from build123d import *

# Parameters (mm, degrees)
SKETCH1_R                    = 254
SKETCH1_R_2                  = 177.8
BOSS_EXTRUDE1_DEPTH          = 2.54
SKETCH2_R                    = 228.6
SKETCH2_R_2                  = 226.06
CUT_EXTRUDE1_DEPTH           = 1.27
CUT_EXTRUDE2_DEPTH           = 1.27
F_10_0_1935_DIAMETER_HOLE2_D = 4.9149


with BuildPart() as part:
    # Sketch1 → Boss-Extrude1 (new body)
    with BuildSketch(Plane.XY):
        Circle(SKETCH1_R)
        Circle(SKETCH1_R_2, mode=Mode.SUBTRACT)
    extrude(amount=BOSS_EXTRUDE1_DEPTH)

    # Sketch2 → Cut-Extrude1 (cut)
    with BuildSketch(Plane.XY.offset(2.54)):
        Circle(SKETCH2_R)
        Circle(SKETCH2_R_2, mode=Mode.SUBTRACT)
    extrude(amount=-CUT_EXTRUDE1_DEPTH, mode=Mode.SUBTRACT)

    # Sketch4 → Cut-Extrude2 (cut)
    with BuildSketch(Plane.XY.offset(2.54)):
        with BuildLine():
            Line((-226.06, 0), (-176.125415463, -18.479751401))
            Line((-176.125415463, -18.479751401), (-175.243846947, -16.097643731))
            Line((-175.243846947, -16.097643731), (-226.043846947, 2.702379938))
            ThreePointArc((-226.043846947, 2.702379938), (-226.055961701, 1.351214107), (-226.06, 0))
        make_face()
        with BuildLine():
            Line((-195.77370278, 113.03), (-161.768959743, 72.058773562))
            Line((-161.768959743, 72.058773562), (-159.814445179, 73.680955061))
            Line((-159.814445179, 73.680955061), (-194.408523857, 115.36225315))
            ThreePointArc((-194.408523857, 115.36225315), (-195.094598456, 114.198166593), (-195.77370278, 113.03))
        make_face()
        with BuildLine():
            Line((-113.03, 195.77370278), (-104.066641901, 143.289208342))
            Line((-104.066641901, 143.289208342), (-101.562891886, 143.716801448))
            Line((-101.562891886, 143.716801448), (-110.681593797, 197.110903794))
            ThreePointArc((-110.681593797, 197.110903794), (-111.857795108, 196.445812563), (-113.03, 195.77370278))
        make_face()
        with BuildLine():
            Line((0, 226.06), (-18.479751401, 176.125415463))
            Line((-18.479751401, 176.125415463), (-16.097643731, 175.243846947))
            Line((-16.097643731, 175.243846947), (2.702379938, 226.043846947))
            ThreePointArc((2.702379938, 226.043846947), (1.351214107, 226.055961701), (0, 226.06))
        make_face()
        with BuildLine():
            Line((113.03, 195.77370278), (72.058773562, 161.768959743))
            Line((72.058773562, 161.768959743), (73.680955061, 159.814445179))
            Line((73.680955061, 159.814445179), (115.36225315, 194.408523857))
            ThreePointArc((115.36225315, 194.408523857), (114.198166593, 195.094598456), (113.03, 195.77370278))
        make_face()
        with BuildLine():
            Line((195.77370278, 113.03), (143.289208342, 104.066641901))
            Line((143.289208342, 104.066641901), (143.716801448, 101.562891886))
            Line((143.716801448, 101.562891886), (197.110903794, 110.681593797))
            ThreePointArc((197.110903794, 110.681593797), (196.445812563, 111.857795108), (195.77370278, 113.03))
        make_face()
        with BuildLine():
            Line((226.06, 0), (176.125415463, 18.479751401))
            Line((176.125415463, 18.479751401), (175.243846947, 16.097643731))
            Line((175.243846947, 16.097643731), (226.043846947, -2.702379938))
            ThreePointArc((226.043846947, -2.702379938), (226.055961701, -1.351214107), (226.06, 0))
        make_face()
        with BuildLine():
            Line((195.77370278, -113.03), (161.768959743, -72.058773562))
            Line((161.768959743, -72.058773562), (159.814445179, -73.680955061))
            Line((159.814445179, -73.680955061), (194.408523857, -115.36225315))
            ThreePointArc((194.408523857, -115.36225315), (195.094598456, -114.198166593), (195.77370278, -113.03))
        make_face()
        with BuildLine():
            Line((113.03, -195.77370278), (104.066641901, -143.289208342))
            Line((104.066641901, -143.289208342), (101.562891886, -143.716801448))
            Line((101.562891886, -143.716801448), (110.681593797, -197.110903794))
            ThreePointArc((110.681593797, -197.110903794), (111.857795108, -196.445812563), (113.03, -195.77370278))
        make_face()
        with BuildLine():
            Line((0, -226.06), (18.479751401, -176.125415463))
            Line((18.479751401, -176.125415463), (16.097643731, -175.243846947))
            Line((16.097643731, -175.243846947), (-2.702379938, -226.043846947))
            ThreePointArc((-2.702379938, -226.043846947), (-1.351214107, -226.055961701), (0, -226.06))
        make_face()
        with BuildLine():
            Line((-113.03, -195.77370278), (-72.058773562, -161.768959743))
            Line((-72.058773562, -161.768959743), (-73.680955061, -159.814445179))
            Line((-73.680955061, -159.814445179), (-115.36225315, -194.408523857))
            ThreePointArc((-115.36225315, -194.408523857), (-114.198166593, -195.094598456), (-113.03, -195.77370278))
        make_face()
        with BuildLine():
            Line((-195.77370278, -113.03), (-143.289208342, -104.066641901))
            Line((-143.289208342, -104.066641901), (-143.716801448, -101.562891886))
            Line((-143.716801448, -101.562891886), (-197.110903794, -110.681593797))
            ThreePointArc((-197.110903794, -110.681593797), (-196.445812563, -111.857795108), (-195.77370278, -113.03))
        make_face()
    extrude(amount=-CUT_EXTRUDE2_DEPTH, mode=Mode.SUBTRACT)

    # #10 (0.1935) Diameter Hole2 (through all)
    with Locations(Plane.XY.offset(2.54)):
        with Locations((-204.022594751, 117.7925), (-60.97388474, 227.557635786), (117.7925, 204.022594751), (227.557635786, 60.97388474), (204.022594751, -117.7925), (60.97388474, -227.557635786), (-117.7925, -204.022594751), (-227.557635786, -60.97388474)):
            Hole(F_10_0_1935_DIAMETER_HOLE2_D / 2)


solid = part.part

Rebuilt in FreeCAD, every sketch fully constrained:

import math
import FreeCAD as App
import Part
import Sketcher

V = App.Vector
Q = App.Units.Quantity

doc = App.newDocument("Part")
body = doc.addObject("PartDesign::Body", "Body")

# Sketch on XY plane
sketch1 = body.newObject("Sketcher::SketchObject", "Sketch")
sketch1.AttachmentSupport = (doc.getObject("XY_Plane"), [""])
sketch1.MapMode = "FlatFace"
sketch1.addGeometry(Part.Circle(V(0, 0, 0), V(0, 0, 1), 254), False)
sketch1.addGeometry(Part.Circle(V(0, 0, 0), V(0, 0, 1), 178), False)
sketch1.addConstraint(Sketcher.Constraint("Coincident", 0, 3, -1, 1))
sketch1.addConstraint(Sketcher.Constraint("Coincident", 1, 3, -1, 1))
sketch1.addConstraint(Sketcher.Constraint("Diameter", 0, Q("20 in")))
sketch1.addConstraint(Sketcher.Constraint("Diameter", 1, Q("14 in")))
pad1 = body.newObject("PartDesign::Pad", "Pad")
pad1.Profile = sketch1
pad1.Length = Q("0.1 in")

# Sketch on XY plane
sketch2 = body.newObject("Sketcher::SketchObject", "Sketch001")
sketch2.AttachmentSupport = (doc.getObject("XY_Plane"), [""])
sketch2.MapMode = "FlatFace"
sketch2.AttachmentOffset = App.Placement(V(0, 0, 0.1 * 25.4), App.Rotation())
sketch2.addGeometry(Part.Circle(V(0, 0, 0), V(0, 0, 1), 229), False)
sketch2.addGeometry(Part.Circle(V(0, 0, 0), V(0, 0, 1), 226), False)
sketch2.addConstraint(Sketcher.Constraint("Coincident", 0, 3, -1, 1))
sketch2.addConstraint(Sketcher.Constraint("Coincident", 1, 3, -1, 1))
sketch2.addConstraint(Sketcher.Constraint("Diameter", 0, Q("18 in")))
sketch2.addConstraint(Sketcher.Constraint("Diameter", 1, Q("17.8 in")))
pocket1 = body.newObject("PartDesign::Pocket", "Pocket")
pocket1.Profile = sketch2
pocket1.Length = Q("0.05 in")

# Sketch on XY plane
sketch3 = body.newObject("Sketcher::SketchObject", "Sketch002")
sketch3.AttachmentSupport = (doc.getObject("XY_Plane"), [""])
sketch3.MapMode = "FlatFace"
sketch3.AttachmentOffset = App.Placement(V(0, 0, 0.1 * 25.4), App.Rotation())
sketch3.addGeometry(Part.LineSegment(V(-226.06, 0, 0), V(-176.125415, -18.479751, 0)), False)
sketch3.addGeometry(Part.LineSegment(V(-176.125415, -18.479751, 0), V(-175.243847, -16.097644, 0)), False)
sketch3.addGeometry(Part.LineSegment(V(-175.243847, -16.097644, 0), V(-226.043847, 2.70238, 0)), False)
sketch3.addGeometry(Part.ArcOfCircle(Part.Circle(V(-0.00002, 0, 0), V(0, 0, 1), 226.05998), math.radians(179.315055), math.radians(180)), False)
sketch3.addGeometry(Part.LineSegment(V(-195.773703, 113.03, 0), V(-161.76896, 72.058774, 0)), False)
sketch3.addGeometry(Part.LineSegment(V(-161.76896, 72.058774, 0), V(-159.814445, 73.680955, 0)), False)
sketch3.addGeometry(Part.LineSegment(V(-159.814445, 73.680955, 0), V(-194.408524, 115.362253, 0)), False)
sketch3.addGeometry(Part.ArcOfCircle(Part.Circle(V(0.000025, -0.000015, 0), V(0, 0, 1), 226.060029), math.radians(149.315055), math.radians(150)), False)
sketch3.addGeometry(Part.LineSegment(V(-113.03, 195.773703, 0), V(-104.066642, 143.289208, 0)), False)
sketch3.addGeometry(Part.LineSegment(V(-104.066642, 143.289208, 0), V(-101.562892, 143.716801, 0)), False)
sketch3.addGeometry(Part.LineSegment(V(-101.562892, 143.716801, 0), V(-110.681594, 197.110904, 0)), False)
sketch3.addGeometry(Part.ArcOfCircle(Part.Circle(V(0.000006, -0.000011, 0), V(0, 0, 1), 226.060013), math.radians(119.315055), math.radians(120)), False)
sketch3.addGeometry(Part.LineSegment(V(0, 226.06, 0), V(-18.479751, 176.125415, 0)), False)
sketch3.addGeometry(Part.LineSegment(V(-18.479751, 176.125415, 0), V(-16.097644, 175.243847, 0)), False)
sketch3.addGeometry(Part.LineSegment(V(-16.097644, 175.243847, 0), V(2.70238, 226.043847, 0)), False)
sketch3.addGeometry(Part.ArcOfCircle(Part.Circle(V(0, 0.00002, 0), V(0, 0, 1), 226.05998), math.radians(89.315055), math.radians(90)), False)
sketch3.addGeometry(Part.LineSegment(V(113.03, 195.773703, 0), V(72.058774, 161.76896, 0)), False)
sketch3.addGeometry(Part.LineSegment(V(72.058774, 161.76896, 0), V(73.680955, 159.814445, 0)), False)
sketch3.addGeometry(Part.LineSegment(V(73.680955, 159.814445, 0), V(115.362253, 194.408524, 0)), False)
sketch3.addGeometry(Part.ArcOfCircle(Part.Circle(V(-0.000015, -0.000025, 0), V(0, 0, 1), 226.060029), math.radians(59.315055), math.radians(60)), False)
sketch3.addGeometry(Part.LineSegment(V(195.773703, 113.03, 0), V(143.289208, 104.066642, 0)), False)
sketch3.addGeometry(Part.LineSegment(V(143.289208, 104.066642, 0), V(143.716801, 101.562892, 0)), False)
sketch3.addGeometry(Part.LineSegment(V(143.716801, 101.562892, 0), V(197.110904, 110.681594, 0)), False)
sketch3.addGeometry(Part.ArcOfCircle(Part.Circle(V(-0.000011, -0.000006, 0), V(0, 0, 1), 226.060013), math.radians(29.315055), math.radians(30)), False)
sketch3.addGeometry(Part.LineSegment(V(226.06, 0, 0), V(176.125415, 18.479751, 0)), False)
sketch3.addGeometry(Part.LineSegment(V(176.125415, 18.479751, 0), V(175.243847, 16.097644, 0)), False)
sketch3.addGeometry(Part.LineSegment(V(175.243847, 16.097644, 0), V(226.043847, -2.70238, 0)), False)
sketch3.addGeometry(Part.ArcOfCircle(Part.Circle(V(0.00002, 0, 0), V(0, 0, 1), 226.05998), math.radians(-0.684945), math.radians(0)), False)
sketch3.addGeometry(Part.LineSegment(V(195.773703, -113.03, 0), V(161.76896, -72.058774, 0)), False)
sketch3.addGeometry(Part.LineSegment(V(161.76896, -72.058774, 0), V(159.814445, -73.680955, 0)), False)
sketch3.addGeometry(Part.LineSegment(V(159.814445, -73.680955, 0), V(194.408524, -115.362253, 0)), False)
sketch3.addGeometry(Part.ArcOfCircle(Part.Circle(V(-0.000025, 0.000015, 0), V(0, 0, 1), 226.060029), math.radians(-30.684945), math.radians(-30)), False)
sketch3.addGeometry(Part.LineSegment(V(113.03, -195.773703, 0), V(104.066642, -143.289208, 0)), False)
sketch3.addGeometry(Part.LineSegment(V(104.066642, -143.289208, 0), V(101.562892, -143.716801, 0)), False)
sketch3.addGeometry(Part.LineSegment(V(101.562892, -143.716801, 0), V(110.681594, -197.110904, 0)), False)
sketch3.addGeometry(Part.ArcOfCircle(Part.Circle(V(-0.000006, 0.000011, 0), V(0, 0, 1), 226.060013), math.radians(-60.684945), math.radians(-60)), False)
sketch3.addGeometry(Part.LineSegment(V(0, -226.06, 0), V(18.479751, -176.125415, 0)), False)
sketch3.addGeometry(Part.LineSegment(V(18.479751, -176.125415, 0), V(16.097644, -175.243847, 0)), False)
sketch3.addGeometry(Part.LineSegment(V(16.097644, -175.243847, 0), V(-2.70238, -226.043847, 0)), False)
sketch3.addGeometry(Part.ArcOfCircle(Part.Circle(V(0, -0.00002, 0), V(0, 0, 1), 226.05998), math.radians(-90.684945), math.radians(-90)), False)
sketch3.addGeometry(Part.LineSegment(V(-113.03, -195.773703, 0), V(-72.058774, -161.76896, 0)), False)
sketch3.addGeometry(Part.LineSegment(V(-72.058774, -161.76896, 0), V(-73.680955, -159.814445, 0)), False)
sketch3.addGeometry(Part.LineSegment(V(-73.680955, -159.814445, 0), V(-115.362253, -194.408524, 0)), False)
sketch3.addGeometry(Part.ArcOfCircle(Part.Circle(V(0.000015, 0.000025, 0), V(0, 0, 1), 226.060029), math.radians(-120.684945), math.radians(-120)), False)
sketch3.addGeometry(Part.LineSegment(V(-195.773703, -113.03, 0), V(-143.289208, -104.066642, 0)), False)
sketch3.addGeometry(Part.LineSegment(V(-143.289208, -104.066642, 0), V(-143.716801, -101.562892, 0)), False)
sketch3.addGeometry(Part.LineSegment(V(-143.716801, -101.562892, 0), V(-197.110904, -110.681594, 0)), False)
sketch3.addGeometry(Part.ArcOfCircle(Part.Circle(V(0.000011, 0.000006, 0), V(0, 0, 1), 226.060013), math.radians(-150.684945), math.radians(-150)), False)
sketch3.addConstraint(Sketcher.Constraint("Coincident", 0, 2, 1, 1))
sketch3.addConstraint(Sketcher.Constraint("Coincident", 1, 2, 2, 1))
sketch3.addConstraint(Sketcher.Constraint("Coincident", 2, 2, 3, 1))
sketch3.addConstraint(Sketcher.Constraint("Coincident", 3, 2, 0, 1))
sketch3.addConstraint(Sketcher.Constraint("Coincident", 4, 2, 5, 1))
sketch3.addConstraint(Sketcher.Constraint("Coincident", 5, 2, 6, 1))
sketch3.addConstraint(Sketcher.Constraint("Coincident", 6, 2, 7, 1))
sketch3.addConstraint(Sketcher.Constraint("Coincident", 7, 2, 4, 1))
sketch3.addConstraint(Sketcher.Constraint("Coincident", 8, 2, 9, 1))
sketch3.addConstraint(Sketcher.Constraint("Coincident", 9, 2, 10, 1))
sketch3.addConstraint(Sketcher.Constraint("Coincident", 10, 2, 11, 1))
sketch3.addConstraint(Sketcher.Constraint("Coincident", 11, 2, 8, 1))
sketch3.addConstraint(Sketcher.Constraint("Coincident", 12, 2, 13, 1))
sketch3.addConstraint(Sketcher.Constraint("Coincident", 13, 2, 14, 1))
sketch3.addConstraint(Sketcher.Constraint("Coincident", 14, 2, 15, 1))
sketch3.addConstraint(Sketcher.Constraint("Coincident", 15, 2, 12, 1))
sketch3.addConstraint(Sketcher.Constraint("Coincident", 16, 2, 17, 1))
sketch3.addConstraint(Sketcher.Constraint("Coincident", 17, 2, 18, 1))
sketch3.addConstraint(Sketcher.Constraint("Coincident", 18, 2, 19, 1))
sketch3.addConstraint(Sketcher.Constraint("Coincident", 19, 2, 16, 1))
sketch3.addConstraint(Sketcher.Constraint("Coincident", 20, 2, 21, 1))
sketch3.addConstraint(Sketcher.Constraint("Coincident", 21, 2, 22, 1))
sketch3.addConstraint(Sketcher.Constraint("Coincident", 22, 2, 23, 1))
sketch3.addConstraint(Sketcher.Constraint("Coincident", 23, 2, 20, 1))
sketch3.addConstraint(Sketcher.Constraint("Coincident", 24, 2, 25, 1))
sketch3.addConstraint(Sketcher.Constraint("Coincident", 25, 2, 26, 1))
sketch3.addConstraint(Sketcher.Constraint("Coincident", 26, 2, 27, 1))
sketch3.addConstraint(Sketcher.Constraint("Coincident", 27, 2, 24, 1))
sketch3.addConstraint(Sketcher.Constraint("Coincident", 28, 2, 29, 1))
sketch3.addConstraint(Sketcher.Constraint("Coincident", 29, 2, 30, 1))
sketch3.addConstraint(Sketcher.Constraint("Coincident", 30, 2, 31, 1))
sketch3.addConstraint(Sketcher.Constraint("Coincident", 31, 2, 28, 1))
sketch3.addConstraint(Sketcher.Constraint("Coincident", 32, 2, 33, 1))
sketch3.addConstraint(Sketcher.Constraint("Coincident", 33, 2, 34, 1))
sketch3.addConstraint(Sketcher.Constraint("Coincident", 34, 2, 35, 1))
sketch3.addConstraint(Sketcher.Constraint("Coincident", 35, 2, 32, 1))
sketch3.addConstraint(Sketcher.Constraint("Coincident", 36, 2, 37, 1))
sketch3.addConstraint(Sketcher.Constraint("Coincident", 37, 2, 38, 1))
sketch3.addConstraint(Sketcher.Constraint("Coincident", 38, 2, 39, 1))
sketch3.addConstraint(Sketcher.Constraint("Coincident", 39, 2, 36, 1))
sketch3.addConstraint(Sketcher.Constraint("Coincident", 40, 2, 41, 1))
sketch3.addConstraint(Sketcher.Constraint("Coincident", 41, 2, 42, 1))
sketch3.addConstraint(Sketcher.Constraint("Coincident", 42, 2, 43, 1))
sketch3.addConstraint(Sketcher.Constraint("Coincident", 43, 2, 40, 1))
sketch3.addConstraint(Sketcher.Constraint("Coincident", 44, 2, 45, 1))
sketch3.addConstraint(Sketcher.Constraint("Coincident", 45, 2, 46, 1))
sketch3.addConstraint(Sketcher.Constraint("Coincident", 46, 2, 47, 1))
sketch3.addConstraint(Sketcher.Constraint("Coincident", 47, 2, 44, 1))
sketch3.addConstraint(Sketcher.Constraint("Equal", 3, 15))
sketch3.addConstraint(Sketcher.Constraint("Equal", 7, 19))
sketch3.addConstraint(Sketcher.Constraint("Equal", 11, 23))
sketch3.addConstraint(Sketcher.Constraint("Equal", 15, 27))
sketch3.addConstraint(Sketcher.Constraint("Equal", 19, 31))
sketch3.addConstraint(Sketcher.Constraint("Equal", 23, 35))
sketch3.addConstraint(Sketcher.Constraint("Equal", 27, 39))
sketch3.addConstraint(Sketcher.Constraint("Equal", 31, 43))
sketch3.addConstraint(Sketcher.Constraint("Equal", 35, 47))
sketch3.addConstraint(Sketcher.Constraint("Symmetric", 3, 3, 27, 3, -1, 1))
sketch3.addConstraint(Sketcher.Constraint("Symmetric", 7, 3, 31, 3, -1, 1))
sketch3.addConstraint(Sketcher.Constraint("Symmetric", 11, 3, 35, 3, -1, 1))
sketch3.addConstraint(Sketcher.Constraint("Symmetric", 15, 3, 39, 3, -1, 1))
sketch3.addConstraint(Sketcher.Constraint("Symmetric", 19, 3, 43, 3, -1, 1))
sketch3.addConstraint(Sketcher.Constraint("Symmetric", 23, 3, 47, 3, -1, 1))
sketch3.addConstraint(Sketcher.Constraint("Symmetric", 0, 2, 24, 2, -1, 1))
sketch3.addConstraint(Sketcher.Constraint("Symmetric", 1, 2, 25, 2, -1, 1))
sketch3.addConstraint(Sketcher.Constraint("Symmetric", 4, 2, 28, 2, -1, 1))
sketch3.addConstraint(Sketcher.Constraint("Symmetric", 5, 2, 29, 2, -1, 1))
sketch3.addConstraint(Sketcher.Constraint("Symmetric", 8, 2, 32, 2, -1, 1))
sketch3.addConstraint(Sketcher.Constraint("Symmetric", 9, 2, 33, 2, -1, 1))
sketch3.addConstraint(Sketcher.Constraint("Symmetric", 12, 2, 36, 2, -1, 1))
sketch3.addConstraint(Sketcher.Constraint("Symmetric", 13, 2, 37, 2, -1, 1))
sketch3.addConstraint(Sketcher.Constraint("Symmetric", 16, 2, 40, 2, -1, 1))
sketch3.addConstraint(Sketcher.Constraint("Symmetric", 17, 2, 41, 2, -1, 1))
sketch3.addConstraint(Sketcher.Constraint("Symmetric", 20, 2, 44, 2, -1, 1))
sketch3.addConstraint(Sketcher.Constraint("Symmetric", 21, 2, 45, 2, -1, 1))
sketch3.addConstraint(Sketcher.Constraint("Symmetric", 11, 3, 23, 3, -2))
sketch3.addConstraint(Sketcher.Constraint("Symmetric", 11, 2, 19, 2, -2))
sketch3.addConstraint(Sketcher.Constraint("Symmetric", 7, 2, 23, 2, -2))
sketch3.addConstraint(Sketcher.Constraint("PointOnObject", 3, 3, -1))
sketch3.addConstraint(Sketcher.Constraint("PointOnObject", 15, 3, -2))
sketch3.addConstraint(Sketcher.Constraint("PointOnObject", 3, 2, -1))
sketch3.addConstraint(Sketcher.Constraint("PointOnObject", 15, 2, -2))
sketch3.addConstraint(Sketcher.Constraint("PointOnObject", 27, 2, -1))
sketch3.addConstraint(Sketcher.Constraint("PointOnObject", 39, 2, -2))
sketch3.addConstraint(Sketcher.Constraint("Perpendicular", 0, 1))
sketch3.addConstraint(Sketcher.Constraint("Perpendicular", 1, 2))
sketch3.addConstraint(Sketcher.Constraint("Perpendicular", 4, 5))
sketch3.addConstraint(Sketcher.Constraint("Perpendicular", 5, 6))
sketch3.addConstraint(Sketcher.Constraint("Perpendicular", 8, 9))
sketch3.addConstraint(Sketcher.Constraint("Perpendicular", 9, 10))
sketch3.addConstraint(Sketcher.Constraint("Perpendicular", 2, 12))
sketch3.addConstraint(Sketcher.Constraint("Perpendicular", 12, 13))
sketch3.addConstraint(Sketcher.Constraint("Perpendicular", 13, 14))
sketch3.addConstraint(Sketcher.Constraint("Perpendicular", 6, 16))
sketch3.addConstraint(Sketcher.Constraint("Perpendicular", 16, 17))
sketch3.addConstraint(Sketcher.Constraint("Perpendicular", 17, 18))
sketch3.addConstraint(Sketcher.Constraint("Perpendicular", 10, 20))
sketch3.addConstraint(Sketcher.Constraint("Perpendicular", 20, 21))
sketch3.addConstraint(Sketcher.Constraint("Perpendicular", 21, 22))
sketch3.addConstraint(Sketcher.Constraint("Perpendicular", 25, 26))
sketch3.addConstraint(Sketcher.Constraint("Perpendicular", 18, 28))
sketch3.addConstraint(Sketcher.Constraint("Perpendicular", 29, 30))
sketch3.addConstraint(Sketcher.Constraint("Perpendicular", 22, 32))
sketch3.addConstraint(Sketcher.Constraint("Perpendicular", 33, 34))
sketch3.addConstraint(Sketcher.Constraint("Perpendicular", 37, 38))
sketch3.addConstraint(Sketcher.Constraint("Perpendicular", 30, 40))
sketch3.addConstraint(Sketcher.Constraint("Perpendicular", 41, 42))
sketch3.addConstraint(Sketcher.Constraint("Perpendicular", 34, 44))
sketch3.addConstraint(Sketcher.Constraint("Perpendicular", 45, 46))
sketch3.addConstraint(Sketcher.Constraint("Equal", 0, 4))
sketch3.addConstraint(Sketcher.Constraint("Equal", 1, 5))
sketch3.addConstraint(Sketcher.Constraint("Equal", 2, 6))
sketch3.addConstraint(Sketcher.Constraint("Equal", 4, 8))
sketch3.addConstraint(Sketcher.Constraint("Equal", 5, 9))
sketch3.addConstraint(Sketcher.Constraint("Equal", 6, 10))
sketch3.addConstraint(Sketcher.Constraint("Equal", 8, 12))
sketch3.addConstraint(Sketcher.Constraint("Equal", 9, 13))
sketch3.addConstraint(Sketcher.Constraint("Equal", 12, 16))
sketch3.addConstraint(Sketcher.Constraint("Equal", 13, 17))
sketch3.addConstraint(Sketcher.Constraint("Equal", 14, 18))
sketch3.addConstraint(Sketcher.Constraint("Equal", 16, 20))
sketch3.addConstraint(Sketcher.Constraint("Equal", 17, 21))
sketch3.addConstraint(Sketcher.Constraint("Equal", 18, 22))
sketch3.addConstraint(Sketcher.Constraint("DistanceX", 2, 2, 1, 2, Q("2 in")))
sketch3.addConstraint(Sketcher.Constraint("Distance", 1, Q("0.1 in")))
sketch3.addConstraint(Sketcher.Constraint("DistanceX", 3, 2, -1, 1, Q("8.9 in")))
sketch3.addConstraint(Sketcher.Constraint("DistanceY", -1, 1, 15, 2, Q("8.9 in")))
sketch3.addConstraint(Sketcher.Constraint("Radius", 3, Q("226.05998 mm")))
sketch3.addConstraint(Sketcher.Constraint("Radius", 7, Q("226.060029 mm")))
sketch3.addConstraint(Sketcher.Constraint("Radius", 11, Q("226.060013 mm")))
sketch3.addConstraint(Sketcher.Constraint("DistanceY", -1, 1, 9, 2, Q("143.716801 mm")))
sketch3.addConstraint(Sketcher.Constraint("DistanceX", -1, 1, 21, 2, Q("143.716801 mm")))
sketch3.addConstraint(Sketcher.Constraint("DistanceX", 0, 2, 19, 3, Q("176.125401 mm")))
sketch3.addConstraint(Sketcher.Constraint("DistanceX", 1, 2, 5, 2, Q("15.429402 mm")))
sketch3.addConstraint(Sketcher.Constraint("DistanceY", 1, 2, 5, 2, Q("89.778599 mm")))
pocket2 = body.newObject("PartDesign::Pocket", "Pocket001")
pocket2.Profile = sketch3
pocket2.Length = Q("0.05 in")

# Sketch on XY plane
sketch4 = body.newObject("Sketcher::SketchObject", "Sketch003")
sketch4.AttachmentSupport = (doc.getObject("XY_Plane"), [""])
sketch4.MapMode = "FlatFace"
sketch4.AttachmentOffset = App.Placement(V(0, 0, 0.1 * 25.4), App.Rotation())
sketch4.addGeometry(Part.Circle(V(-204, 117.8, 0), V(0, 0, 1), 2.5), False)
sketch4.addGeometry(Part.Circle(V(-61, 227.6, 0), V(0, 0, 1), 2.5), False)
sketch4.addGeometry(Part.Circle(V(117.8, 204, 0), V(0, 0, 1), 2.5), False)
sketch4.addGeometry(Part.Circle(V(227.6, 61, 0), V(0, 0, 1), 2.5), False)
sketch4.addGeometry(Part.Circle(V(204, -117.8, 0), V(0, 0, 1), 2.5), False)
sketch4.addGeometry(Part.Circle(V(61, -227.6, 0), V(0, 0, 1), 2.5), False)
sketch4.addGeometry(Part.Circle(V(-117.8, -204, 0), V(0, 0, 1), 2.5), False)
sketch4.addGeometry(Part.Circle(V(-227.6, -61, 0), V(0, 0, 1), 2.5), False)
sketch4.addConstraint(Sketcher.Constraint("Equal", 0, 1))
sketch4.addConstraint(Sketcher.Constraint("Equal", 1, 2))
sketch4.addConstraint(Sketcher.Constraint("Equal", 2, 3))
sketch4.addConstraint(Sketcher.Constraint("Equal", 3, 4))
sketch4.addConstraint(Sketcher.Constraint("Equal", 4, 5))
sketch4.addConstraint(Sketcher.Constraint("Equal", 5, 6))
sketch4.addConstraint(Sketcher.Constraint("Equal", 6, 7))
sketch4.addConstraint(Sketcher.Constraint("Symmetric", 0, 3, 4, 3, -1, 1))
sketch4.addConstraint(Sketcher.Constraint("Symmetric", 1, 3, 5, 3, -1, 1))
sketch4.addConstraint(Sketcher.Constraint("Symmetric", 2, 3, 6, 3, -1, 1))
sketch4.addConstraint(Sketcher.Constraint("Symmetric", 3, 3, 7, 3, -1, 1))
sketch4.addConstraint(Sketcher.Constraint("Diameter", 0, Q("0.1935 in")))
sketch4.addConstraint(Sketcher.Constraint("DistanceY", 4, 3, 0, 3, Q("9.275 in")))
sketch4.addConstraint(Sketcher.Constraint("DistanceX", -1, 1, 2, 3, Q("4.6375 in")))
sketch4.addConstraint(Sketcher.Constraint("DistanceX", 0, 3, 1, 3, Q("143.04871 mm")))
sketch4.addConstraint(Sketcher.Constraint("DistanceY", 2, 3, 1, 3, Q("23.535041 mm")))
sketch4.addConstraint(Sketcher.Constraint("DistanceY", 3, 3, 2, 3, Q("143.04871 mm")))
sketch4.addConstraint(Sketcher.Constraint("DistanceX", 1, 3, 3, 3, Q("288.531521 mm")))
sketch4.addConstraint(Sketcher.Constraint("DistanceX", 4, 3, 3, 3, Q("23.535041 mm")))
sketch4.addConstraint(Sketcher.Constraint("DistanceY", 5, 3, 3, 3, Q("288.531521 mm")))
doc.recompute()
hole = body.newObject("PartDesign::Hole", "Hole")
hole.Profile = sketch4
hole.ThreadType = "None"
hole.Diameter = Q("0.1935 in")
hole.DepthType = "ThroughAll"

doc.recompute()
